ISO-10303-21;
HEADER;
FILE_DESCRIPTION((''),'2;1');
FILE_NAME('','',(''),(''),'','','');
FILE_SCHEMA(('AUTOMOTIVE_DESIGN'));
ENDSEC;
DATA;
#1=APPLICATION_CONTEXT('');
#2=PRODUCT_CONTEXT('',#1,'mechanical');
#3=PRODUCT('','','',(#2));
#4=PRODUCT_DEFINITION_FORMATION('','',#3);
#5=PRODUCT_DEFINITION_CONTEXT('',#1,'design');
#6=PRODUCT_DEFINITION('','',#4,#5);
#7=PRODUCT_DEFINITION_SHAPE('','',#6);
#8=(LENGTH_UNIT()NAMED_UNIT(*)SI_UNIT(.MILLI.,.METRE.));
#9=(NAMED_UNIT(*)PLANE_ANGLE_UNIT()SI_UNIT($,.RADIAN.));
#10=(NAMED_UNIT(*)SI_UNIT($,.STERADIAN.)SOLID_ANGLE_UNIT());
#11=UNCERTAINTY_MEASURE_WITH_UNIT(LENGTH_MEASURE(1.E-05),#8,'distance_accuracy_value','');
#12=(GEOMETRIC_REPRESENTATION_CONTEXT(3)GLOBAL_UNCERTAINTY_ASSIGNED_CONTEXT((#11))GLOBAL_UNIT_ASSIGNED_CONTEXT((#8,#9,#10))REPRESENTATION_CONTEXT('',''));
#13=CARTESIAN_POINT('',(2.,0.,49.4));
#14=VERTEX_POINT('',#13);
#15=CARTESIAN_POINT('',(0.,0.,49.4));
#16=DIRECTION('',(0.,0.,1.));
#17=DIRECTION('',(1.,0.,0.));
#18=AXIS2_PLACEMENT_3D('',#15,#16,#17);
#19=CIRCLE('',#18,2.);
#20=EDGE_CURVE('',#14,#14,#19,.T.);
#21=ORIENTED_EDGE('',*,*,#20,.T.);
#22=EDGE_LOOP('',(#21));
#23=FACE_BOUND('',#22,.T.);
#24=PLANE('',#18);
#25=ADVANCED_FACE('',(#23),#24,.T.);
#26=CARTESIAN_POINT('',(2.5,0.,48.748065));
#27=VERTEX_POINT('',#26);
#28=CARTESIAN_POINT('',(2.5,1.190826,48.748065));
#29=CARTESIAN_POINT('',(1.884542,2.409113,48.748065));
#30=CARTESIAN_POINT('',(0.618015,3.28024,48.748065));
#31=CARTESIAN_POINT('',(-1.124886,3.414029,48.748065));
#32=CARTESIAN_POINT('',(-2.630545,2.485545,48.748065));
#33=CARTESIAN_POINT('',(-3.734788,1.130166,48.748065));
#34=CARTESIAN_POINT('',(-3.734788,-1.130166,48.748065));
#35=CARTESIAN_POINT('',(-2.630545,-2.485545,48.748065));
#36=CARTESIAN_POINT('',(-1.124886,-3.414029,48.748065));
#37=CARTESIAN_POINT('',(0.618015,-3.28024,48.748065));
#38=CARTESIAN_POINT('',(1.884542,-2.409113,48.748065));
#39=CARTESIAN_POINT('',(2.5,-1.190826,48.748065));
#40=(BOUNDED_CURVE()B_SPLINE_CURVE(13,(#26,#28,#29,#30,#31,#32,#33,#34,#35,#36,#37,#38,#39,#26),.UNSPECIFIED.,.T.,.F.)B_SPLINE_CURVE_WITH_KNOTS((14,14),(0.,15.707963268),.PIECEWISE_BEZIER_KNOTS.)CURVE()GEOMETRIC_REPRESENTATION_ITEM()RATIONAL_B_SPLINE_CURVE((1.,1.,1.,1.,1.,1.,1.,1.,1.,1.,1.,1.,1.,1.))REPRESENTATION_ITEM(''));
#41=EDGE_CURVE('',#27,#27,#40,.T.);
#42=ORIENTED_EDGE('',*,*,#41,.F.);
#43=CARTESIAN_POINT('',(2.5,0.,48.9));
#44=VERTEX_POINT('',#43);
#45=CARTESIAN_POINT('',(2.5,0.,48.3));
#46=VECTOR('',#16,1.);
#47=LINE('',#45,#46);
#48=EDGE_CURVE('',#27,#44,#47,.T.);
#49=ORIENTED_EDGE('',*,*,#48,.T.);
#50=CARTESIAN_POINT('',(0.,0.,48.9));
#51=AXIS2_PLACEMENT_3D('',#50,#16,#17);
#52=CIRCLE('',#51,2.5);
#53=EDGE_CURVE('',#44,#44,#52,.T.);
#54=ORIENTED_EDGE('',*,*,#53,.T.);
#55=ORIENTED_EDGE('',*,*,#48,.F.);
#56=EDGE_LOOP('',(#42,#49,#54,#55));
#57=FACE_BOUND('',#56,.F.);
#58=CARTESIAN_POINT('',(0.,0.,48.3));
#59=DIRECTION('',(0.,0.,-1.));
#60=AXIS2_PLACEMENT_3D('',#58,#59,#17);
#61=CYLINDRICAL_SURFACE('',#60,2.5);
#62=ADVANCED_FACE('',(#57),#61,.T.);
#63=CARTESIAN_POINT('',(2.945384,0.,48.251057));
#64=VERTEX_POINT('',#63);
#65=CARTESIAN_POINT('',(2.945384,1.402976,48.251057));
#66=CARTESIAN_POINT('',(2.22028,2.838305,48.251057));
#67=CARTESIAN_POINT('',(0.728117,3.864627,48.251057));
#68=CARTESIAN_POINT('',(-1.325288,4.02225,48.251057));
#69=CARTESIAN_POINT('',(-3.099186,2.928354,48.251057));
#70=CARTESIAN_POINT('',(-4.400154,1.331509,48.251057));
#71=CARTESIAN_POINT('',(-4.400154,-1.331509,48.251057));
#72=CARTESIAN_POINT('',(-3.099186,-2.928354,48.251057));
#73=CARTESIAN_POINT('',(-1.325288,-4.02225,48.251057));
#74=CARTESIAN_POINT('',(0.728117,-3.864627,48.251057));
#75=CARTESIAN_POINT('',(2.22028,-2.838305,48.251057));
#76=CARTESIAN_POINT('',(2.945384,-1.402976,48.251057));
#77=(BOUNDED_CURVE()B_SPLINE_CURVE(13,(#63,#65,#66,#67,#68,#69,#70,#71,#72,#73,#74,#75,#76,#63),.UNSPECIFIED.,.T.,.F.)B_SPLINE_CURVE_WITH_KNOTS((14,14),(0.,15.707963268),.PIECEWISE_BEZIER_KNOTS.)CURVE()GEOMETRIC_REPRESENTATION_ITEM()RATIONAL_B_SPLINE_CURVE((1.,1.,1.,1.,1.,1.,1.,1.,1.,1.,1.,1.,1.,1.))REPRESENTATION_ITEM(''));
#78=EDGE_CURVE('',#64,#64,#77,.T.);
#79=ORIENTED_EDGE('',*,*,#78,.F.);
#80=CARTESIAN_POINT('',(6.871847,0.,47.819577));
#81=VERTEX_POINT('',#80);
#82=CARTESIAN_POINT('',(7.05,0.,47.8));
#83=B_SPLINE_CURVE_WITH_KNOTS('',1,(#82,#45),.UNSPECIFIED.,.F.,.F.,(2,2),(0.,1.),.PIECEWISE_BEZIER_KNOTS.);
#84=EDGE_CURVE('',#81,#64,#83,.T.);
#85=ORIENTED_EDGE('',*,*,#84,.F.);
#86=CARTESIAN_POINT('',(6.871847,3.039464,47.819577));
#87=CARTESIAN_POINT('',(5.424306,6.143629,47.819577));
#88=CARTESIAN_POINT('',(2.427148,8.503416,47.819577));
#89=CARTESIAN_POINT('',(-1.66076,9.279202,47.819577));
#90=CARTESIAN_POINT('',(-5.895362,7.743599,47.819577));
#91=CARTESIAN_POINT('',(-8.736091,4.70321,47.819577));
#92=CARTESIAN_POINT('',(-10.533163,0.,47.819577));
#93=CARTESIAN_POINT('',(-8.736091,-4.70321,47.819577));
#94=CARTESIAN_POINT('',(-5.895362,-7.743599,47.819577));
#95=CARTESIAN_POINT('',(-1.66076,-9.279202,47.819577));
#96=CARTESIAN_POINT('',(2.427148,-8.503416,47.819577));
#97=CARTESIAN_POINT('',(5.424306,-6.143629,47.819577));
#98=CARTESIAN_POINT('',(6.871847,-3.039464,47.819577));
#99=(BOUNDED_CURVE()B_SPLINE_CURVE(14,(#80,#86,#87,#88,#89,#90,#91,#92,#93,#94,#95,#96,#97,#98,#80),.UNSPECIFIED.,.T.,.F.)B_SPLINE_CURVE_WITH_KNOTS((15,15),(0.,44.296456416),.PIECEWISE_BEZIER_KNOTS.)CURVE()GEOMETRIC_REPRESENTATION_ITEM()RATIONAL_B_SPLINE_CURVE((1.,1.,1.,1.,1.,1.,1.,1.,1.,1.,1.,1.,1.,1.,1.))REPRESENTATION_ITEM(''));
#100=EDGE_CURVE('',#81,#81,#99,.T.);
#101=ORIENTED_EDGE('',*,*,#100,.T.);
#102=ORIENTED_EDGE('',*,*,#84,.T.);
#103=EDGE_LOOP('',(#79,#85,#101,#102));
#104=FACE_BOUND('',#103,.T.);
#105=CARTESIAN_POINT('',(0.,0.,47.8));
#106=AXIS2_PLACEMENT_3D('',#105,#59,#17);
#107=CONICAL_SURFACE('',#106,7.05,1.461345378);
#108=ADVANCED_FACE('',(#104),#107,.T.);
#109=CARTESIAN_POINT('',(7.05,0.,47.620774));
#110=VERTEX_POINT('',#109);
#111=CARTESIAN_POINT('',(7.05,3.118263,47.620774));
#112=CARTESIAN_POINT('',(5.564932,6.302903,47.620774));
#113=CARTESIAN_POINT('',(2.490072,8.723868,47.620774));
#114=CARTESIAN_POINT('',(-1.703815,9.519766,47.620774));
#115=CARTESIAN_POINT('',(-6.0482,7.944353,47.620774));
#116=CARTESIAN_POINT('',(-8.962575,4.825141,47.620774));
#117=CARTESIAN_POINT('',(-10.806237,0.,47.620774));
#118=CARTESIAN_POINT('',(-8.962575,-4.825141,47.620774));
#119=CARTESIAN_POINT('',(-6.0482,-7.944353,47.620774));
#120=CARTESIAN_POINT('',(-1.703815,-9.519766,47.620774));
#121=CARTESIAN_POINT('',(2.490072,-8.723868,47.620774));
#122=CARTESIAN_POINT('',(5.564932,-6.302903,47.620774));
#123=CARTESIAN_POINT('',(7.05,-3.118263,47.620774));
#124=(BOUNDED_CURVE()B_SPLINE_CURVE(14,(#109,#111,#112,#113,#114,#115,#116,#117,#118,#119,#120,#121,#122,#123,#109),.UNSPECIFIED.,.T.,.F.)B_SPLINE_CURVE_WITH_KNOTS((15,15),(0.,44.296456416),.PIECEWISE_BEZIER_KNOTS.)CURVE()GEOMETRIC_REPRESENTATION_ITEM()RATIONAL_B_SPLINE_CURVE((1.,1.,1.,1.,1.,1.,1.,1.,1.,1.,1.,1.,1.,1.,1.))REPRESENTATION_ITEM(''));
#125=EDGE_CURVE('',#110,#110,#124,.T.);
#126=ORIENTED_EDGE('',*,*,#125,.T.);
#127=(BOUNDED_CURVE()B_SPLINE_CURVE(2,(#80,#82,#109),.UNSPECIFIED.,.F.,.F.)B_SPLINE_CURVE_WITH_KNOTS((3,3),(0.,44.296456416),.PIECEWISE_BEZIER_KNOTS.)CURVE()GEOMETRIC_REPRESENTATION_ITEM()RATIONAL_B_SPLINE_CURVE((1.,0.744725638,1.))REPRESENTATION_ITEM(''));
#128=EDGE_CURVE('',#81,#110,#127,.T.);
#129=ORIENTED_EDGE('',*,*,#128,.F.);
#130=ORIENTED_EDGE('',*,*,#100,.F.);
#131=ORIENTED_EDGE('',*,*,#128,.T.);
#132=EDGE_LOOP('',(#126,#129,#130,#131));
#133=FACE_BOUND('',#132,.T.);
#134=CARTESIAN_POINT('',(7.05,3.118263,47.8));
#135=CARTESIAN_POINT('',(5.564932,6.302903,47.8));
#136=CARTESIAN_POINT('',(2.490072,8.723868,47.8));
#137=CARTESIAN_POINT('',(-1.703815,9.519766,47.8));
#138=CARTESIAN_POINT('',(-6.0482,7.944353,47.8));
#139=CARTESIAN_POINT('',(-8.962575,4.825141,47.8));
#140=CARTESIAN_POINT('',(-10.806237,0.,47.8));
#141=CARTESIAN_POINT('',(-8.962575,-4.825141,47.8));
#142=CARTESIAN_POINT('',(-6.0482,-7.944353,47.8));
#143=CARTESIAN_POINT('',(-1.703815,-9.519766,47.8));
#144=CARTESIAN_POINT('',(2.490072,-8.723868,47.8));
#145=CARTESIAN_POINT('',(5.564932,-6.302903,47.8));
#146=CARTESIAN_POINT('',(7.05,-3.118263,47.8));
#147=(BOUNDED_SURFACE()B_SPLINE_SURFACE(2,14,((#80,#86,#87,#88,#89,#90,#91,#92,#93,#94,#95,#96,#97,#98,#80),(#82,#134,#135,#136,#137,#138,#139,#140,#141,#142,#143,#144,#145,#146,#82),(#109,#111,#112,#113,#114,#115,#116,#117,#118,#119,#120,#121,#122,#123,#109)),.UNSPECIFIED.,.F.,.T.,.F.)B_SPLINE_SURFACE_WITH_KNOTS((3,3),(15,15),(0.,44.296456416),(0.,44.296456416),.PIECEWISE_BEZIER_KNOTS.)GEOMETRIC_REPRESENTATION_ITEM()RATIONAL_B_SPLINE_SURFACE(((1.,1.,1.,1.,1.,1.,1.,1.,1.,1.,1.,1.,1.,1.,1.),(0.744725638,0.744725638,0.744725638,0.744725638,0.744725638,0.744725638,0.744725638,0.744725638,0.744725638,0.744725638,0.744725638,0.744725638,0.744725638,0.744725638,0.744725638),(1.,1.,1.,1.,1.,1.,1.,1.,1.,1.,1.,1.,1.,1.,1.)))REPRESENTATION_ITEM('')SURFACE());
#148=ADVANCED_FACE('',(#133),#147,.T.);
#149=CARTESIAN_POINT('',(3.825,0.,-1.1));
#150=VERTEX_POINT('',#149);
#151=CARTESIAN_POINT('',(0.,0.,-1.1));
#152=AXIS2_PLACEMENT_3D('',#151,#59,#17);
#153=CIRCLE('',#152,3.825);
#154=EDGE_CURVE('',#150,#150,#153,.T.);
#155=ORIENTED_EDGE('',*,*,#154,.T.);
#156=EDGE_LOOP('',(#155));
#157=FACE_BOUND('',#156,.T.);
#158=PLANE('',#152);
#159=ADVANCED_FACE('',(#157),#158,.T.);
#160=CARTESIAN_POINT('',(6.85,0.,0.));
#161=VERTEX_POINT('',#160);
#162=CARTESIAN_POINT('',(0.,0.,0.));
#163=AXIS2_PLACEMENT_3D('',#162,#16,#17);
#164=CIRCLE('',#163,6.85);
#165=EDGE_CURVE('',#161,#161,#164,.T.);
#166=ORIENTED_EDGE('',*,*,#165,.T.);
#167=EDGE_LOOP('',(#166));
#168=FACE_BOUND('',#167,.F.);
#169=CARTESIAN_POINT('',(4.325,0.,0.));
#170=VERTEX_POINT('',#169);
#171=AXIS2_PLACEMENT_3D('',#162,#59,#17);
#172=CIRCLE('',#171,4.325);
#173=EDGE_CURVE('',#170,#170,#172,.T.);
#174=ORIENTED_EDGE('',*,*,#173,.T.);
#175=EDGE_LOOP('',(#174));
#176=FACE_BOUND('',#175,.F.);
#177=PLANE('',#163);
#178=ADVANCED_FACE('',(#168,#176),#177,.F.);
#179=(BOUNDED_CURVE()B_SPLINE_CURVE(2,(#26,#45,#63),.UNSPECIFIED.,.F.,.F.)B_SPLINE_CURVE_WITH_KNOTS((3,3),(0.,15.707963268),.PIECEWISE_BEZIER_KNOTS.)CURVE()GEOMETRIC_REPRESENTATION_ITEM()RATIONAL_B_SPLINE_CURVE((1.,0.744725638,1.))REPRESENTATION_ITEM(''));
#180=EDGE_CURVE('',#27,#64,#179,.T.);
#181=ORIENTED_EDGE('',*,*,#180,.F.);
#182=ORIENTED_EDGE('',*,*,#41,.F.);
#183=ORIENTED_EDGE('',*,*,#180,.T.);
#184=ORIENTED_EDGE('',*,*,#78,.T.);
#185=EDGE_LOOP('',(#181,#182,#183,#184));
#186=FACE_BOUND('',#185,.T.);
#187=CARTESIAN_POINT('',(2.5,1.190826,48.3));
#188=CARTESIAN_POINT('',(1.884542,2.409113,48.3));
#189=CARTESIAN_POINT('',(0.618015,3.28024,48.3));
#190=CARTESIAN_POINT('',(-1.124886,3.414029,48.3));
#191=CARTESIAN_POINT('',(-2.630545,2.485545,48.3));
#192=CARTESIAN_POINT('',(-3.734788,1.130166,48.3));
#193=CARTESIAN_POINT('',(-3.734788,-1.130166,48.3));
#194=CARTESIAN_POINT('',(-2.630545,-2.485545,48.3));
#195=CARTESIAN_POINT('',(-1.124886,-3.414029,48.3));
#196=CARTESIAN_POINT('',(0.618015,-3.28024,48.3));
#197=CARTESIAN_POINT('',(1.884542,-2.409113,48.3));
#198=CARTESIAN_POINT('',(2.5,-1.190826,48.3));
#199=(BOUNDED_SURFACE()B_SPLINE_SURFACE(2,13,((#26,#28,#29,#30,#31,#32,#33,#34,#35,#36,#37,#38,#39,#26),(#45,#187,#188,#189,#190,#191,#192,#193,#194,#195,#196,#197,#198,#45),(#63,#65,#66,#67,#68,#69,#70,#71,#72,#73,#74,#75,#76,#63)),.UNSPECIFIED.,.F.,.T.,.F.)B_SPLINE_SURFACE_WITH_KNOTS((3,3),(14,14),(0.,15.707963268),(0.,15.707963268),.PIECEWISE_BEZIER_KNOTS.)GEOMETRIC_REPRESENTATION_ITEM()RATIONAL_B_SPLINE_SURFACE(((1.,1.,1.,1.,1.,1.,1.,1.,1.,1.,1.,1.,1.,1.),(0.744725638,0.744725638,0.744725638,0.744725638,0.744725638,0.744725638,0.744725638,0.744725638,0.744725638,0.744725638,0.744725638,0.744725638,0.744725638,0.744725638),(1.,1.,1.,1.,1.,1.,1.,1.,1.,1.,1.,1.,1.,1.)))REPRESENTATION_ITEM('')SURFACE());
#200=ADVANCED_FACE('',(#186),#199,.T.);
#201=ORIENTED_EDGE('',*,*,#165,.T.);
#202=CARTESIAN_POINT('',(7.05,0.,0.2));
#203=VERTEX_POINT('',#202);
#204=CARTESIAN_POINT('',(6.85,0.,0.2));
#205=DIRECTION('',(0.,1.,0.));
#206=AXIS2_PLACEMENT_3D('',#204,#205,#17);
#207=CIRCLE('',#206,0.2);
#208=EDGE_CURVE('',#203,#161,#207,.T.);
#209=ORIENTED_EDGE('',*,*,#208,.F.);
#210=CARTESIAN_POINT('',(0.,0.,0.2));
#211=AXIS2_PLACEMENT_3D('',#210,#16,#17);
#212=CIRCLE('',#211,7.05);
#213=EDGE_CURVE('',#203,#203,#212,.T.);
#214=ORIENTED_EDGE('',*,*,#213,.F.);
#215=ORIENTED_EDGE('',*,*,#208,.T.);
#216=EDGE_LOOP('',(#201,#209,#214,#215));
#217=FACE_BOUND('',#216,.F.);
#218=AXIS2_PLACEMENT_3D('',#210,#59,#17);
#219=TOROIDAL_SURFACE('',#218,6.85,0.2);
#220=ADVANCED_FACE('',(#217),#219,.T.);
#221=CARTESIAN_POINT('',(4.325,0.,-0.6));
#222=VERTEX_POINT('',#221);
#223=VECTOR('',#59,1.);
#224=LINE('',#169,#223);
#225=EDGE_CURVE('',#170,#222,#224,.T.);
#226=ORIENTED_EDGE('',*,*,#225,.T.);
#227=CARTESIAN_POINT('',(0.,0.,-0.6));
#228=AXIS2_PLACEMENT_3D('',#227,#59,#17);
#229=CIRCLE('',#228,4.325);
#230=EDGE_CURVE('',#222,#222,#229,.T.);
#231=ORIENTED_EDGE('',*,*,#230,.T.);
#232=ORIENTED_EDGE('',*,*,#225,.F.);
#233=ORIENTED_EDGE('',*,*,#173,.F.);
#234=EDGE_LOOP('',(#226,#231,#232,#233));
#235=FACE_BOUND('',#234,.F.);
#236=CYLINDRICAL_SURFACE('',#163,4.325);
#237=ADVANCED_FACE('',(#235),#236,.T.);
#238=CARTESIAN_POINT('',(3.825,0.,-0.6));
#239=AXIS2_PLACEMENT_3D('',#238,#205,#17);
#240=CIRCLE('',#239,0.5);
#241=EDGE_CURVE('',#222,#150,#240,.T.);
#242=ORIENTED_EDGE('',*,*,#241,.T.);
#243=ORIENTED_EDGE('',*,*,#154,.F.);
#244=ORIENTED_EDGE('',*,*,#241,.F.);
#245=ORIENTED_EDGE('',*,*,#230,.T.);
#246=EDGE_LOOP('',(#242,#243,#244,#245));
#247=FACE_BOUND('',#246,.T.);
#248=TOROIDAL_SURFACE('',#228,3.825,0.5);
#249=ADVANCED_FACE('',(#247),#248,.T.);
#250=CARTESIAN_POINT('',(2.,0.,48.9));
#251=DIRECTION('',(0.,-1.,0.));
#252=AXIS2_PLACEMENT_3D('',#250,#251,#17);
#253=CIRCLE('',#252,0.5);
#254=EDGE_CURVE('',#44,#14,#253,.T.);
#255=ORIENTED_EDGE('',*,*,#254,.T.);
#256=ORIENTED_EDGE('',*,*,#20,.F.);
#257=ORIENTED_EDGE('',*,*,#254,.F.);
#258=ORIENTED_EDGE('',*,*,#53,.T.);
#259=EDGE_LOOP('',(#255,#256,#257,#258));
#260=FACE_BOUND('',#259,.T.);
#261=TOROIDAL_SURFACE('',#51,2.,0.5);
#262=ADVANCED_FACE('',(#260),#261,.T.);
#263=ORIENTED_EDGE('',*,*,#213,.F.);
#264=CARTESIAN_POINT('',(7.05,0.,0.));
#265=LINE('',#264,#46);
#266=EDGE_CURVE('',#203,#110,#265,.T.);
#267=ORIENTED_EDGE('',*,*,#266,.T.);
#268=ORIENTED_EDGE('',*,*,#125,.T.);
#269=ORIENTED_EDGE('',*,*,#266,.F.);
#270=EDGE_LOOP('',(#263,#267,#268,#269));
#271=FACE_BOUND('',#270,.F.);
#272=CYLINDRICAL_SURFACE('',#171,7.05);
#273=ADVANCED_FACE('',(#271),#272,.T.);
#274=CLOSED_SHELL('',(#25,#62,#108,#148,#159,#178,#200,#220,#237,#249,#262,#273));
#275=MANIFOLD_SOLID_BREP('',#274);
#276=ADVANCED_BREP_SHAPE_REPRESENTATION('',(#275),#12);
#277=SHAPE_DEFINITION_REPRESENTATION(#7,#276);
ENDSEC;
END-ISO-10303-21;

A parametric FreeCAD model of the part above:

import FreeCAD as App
import Part
import Sketcher

V = App.Vector
Q = App.Units.Quantity


def edges_at(feature, points):
    """Names of the edges that pass closest to the given points."""
    edges = feature.Shape.Edges
    near = lambda p: min(range(len(edges)), key=lambda i: edges[i].distToShape(Part.Vertex(*p))[0])
    return sorted({f"Edge{near(p) + 1}" for p in points})

doc = App.newDocument("Part")
body = doc.addObject("PartDesign::Body", "Body")

# Sketch on XY plane
sketch1 = body.newObject("Sketcher::SketchObject", "Sketch")
sketch1.AttachmentSupport = (doc.getObject("XY_Plane"), [""])
sketch1.MapMode = "FlatFace"
sketch1.addGeometry(Part.Circle(V(0, 0, 0), V(0, 0, 1), 7), False)
sketch1.addConstraint(Sketcher.Constraint("Coincident", 0, 3, -1, 1))
sketch1.addConstraint(Sketcher.Constraint("Diameter", 0, Q("14.1 mm")))
pad1 = body.newObject("PartDesign::Pad", "Pad")
pad1.Profile = sketch1
pad1.Length = 47.8

# Sketch on XY plane
sketch2 = body.newObject("Sketcher::SketchObject", "Sketch001")
sketch2.AttachmentSupport = (doc.getObject("XY_Plane"), [""])
sketch2.MapMode = "FlatFace"
sketch2.addGeometry(Part.Circle(V(0, 0, 0), V(0, 0, 1), 4.3), False)
sketch2.addConstraint(Sketcher.Constraint("Coincident", 0, 3, -1, 1))
sketch2.addConstraint(Sketcher.Constraint("Diameter", 0, Q("8.65 mm")))
pad2 = body.newObject("PartDesign::Pad", "Pad001")
pad2.Profile = sketch2
pad2.Length = 1.1
pad2.Reversed = True

# Sketch on XY plane
sketch3 = body.newObject("Sketcher::SketchObject", "Sketch002")
sketch3.AttachmentSupport = (doc.getObject("XY_Plane"), [""])
sketch3.MapMode = "FlatFace"
sketch3.AttachmentOffset = App.Placement(V(0, 0, 47.8), App.Rotation())
sketch3.addGeometry(Part.Circle(V(0, 0, 0), V(0, 0, 1), 2.5), False)
sketch3.addConstraint(Sketcher.Constraint("Coincident", 0, 3, -1, 1))
sketch3.addConstraint(Sketcher.Constraint("Diameter", 0, Q("5 mm")))
pad3 = body.newObject("PartDesign::Pad", "Pad002")
pad3.Profile = sketch3
pad3.Length = 0.5

# Sketch on XY plane
sketch4 = body.newObject("Sketcher::SketchObject", "Sketch003")
sketch4.AttachmentSupport = (doc.getObject("XY_Plane"), [""])
sketch4.MapMode = "FlatFace"
sketch4.AttachmentOffset = App.Placement(V(0, 0, 47.8), App.Rotation())
sketch4.addGeometry(Part.Circle(V(0, 0, 0), V(0, 0, 1), 7), False)
sketch4.addConstraint(Sketcher.Constraint("Coincident", 0, 3, -1, 1))
sketch4.addConstraint(Sketcher.Constraint("Diameter", 0, Q("14.1 mm")))

# Sketch on XY plane
sketch5 = body.newObject("Sketcher::SketchObject", "Sketch004")
sketch5.AttachmentSupport = (doc.getObject("XY_Plane"), [""])
sketch5.MapMode = "FlatFace"
sketch5.AttachmentOffset = App.Placement(V(0, 0, 48.3), App.Rotation())
sketch5.addGeometry(Part.Circle(V(0, 0, 0), V(0, 0, 1), 2.5), False)
sketch5.addConstraint(Sketcher.Constraint("Coincident", 0, 3, -1, 1))
sketch5.addConstraint(Sketcher.Constraint("Diameter", 0, Q("5 mm")))

additiveloft = body.newObject("PartDesign::AdditiveLoft", "AdditiveLoft")
additiveloft.Profile = sketch4
additiveloft.Sections = [sketch5]

# Sketch on XY plane
sketch6 = body.newObject("Sketcher::SketchObject", "Sketch005")
sketch6.AttachmentSupport = (doc.getObject("XY_Plane"), [""])
sketch6.MapMode = "FlatFace"
sketch6.AttachmentOffset = App.Placement(V(0, 0, 48.3), App.Rotation())
sketch6.addGeometry(Part.Circle(V(0, 0, 0), V(0, 0, 1), 2.5), False)
sketch6.addConstraint(Sketcher.Constraint("Coincident", 0, 3, -1, 1))
sketch6.addConstraint(Sketcher.Constraint("Diameter", 0, Q("5 mm")))
pad4 = body.newObject("PartDesign::Pad", "Pad003")
pad4.Profile = sketch6
pad4.Length = 1.1
doc.recompute()

fillet = body.newObject("PartDesign::Fillet", "Fillet")
fillet.Base = (pad4, edges_at(pad4, [(-4.325, 0, -1.1)]))
fillet.Radius = 0.5
doc.recompute()

fillet2 = body.newObject("PartDesign::Fillet", "Fillet001")
fillet2.Base = (fillet, edges_at(fillet, [(-2.5, 0, 49.4)]))
fillet2.Radius = 0.5
doc.recompute()

fillet3 = body.newObject("PartDesign::Fillet", "Fillet002")
fillet3.Base = (fillet2, edges_at(fillet2, [(-2.5, 0, 48.3)]))
fillet3.Radius = 0.5
doc.recompute()

fillet4 = body.newObject("PartDesign::Fillet", "Fillet003")
fillet4.Base = (fillet3, edges_at(fillet3, [(-7.05, 0, 47.8)]))
fillet4.Radius = 0.2
doc.recompute()

fillet5 = body.newObject("PartDesign::Fillet", "Fillet004")
fillet5.Base = (fillet4, edges_at(fillet4, [(-7.05, 0, 0)]))
fillet5.Radius = 0.2

doc.recompute()
